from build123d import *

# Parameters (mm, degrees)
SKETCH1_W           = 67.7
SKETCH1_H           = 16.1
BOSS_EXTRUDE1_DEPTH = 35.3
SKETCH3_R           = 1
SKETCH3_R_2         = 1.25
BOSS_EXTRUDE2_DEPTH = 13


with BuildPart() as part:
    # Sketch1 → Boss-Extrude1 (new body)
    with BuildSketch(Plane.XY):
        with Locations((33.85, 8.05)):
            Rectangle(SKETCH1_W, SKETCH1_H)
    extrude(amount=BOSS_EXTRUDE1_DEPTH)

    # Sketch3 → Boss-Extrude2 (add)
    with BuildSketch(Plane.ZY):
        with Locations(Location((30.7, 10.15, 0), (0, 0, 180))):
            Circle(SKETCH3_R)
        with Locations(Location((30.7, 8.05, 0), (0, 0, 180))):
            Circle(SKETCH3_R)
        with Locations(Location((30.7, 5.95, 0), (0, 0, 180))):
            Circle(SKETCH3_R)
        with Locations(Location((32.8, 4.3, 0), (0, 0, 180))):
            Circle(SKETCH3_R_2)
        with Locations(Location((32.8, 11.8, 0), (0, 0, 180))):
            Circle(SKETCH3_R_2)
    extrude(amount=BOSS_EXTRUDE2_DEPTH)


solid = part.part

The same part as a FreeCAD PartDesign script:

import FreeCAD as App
import Part
import Sketcher
from FreeCAD import Vector

doc = App.newDocument("Part")
body = doc.addObject("PartDesign::Body", "Body")

sketch1 = body.newObject("Sketcher::SketchObject", "Sketch")
sketch1.AttachmentSupport = (doc.getObject("XY_Plane"), [""])
sketch1.MapMode = "FlatFace"
sketch1.addGeometry([
    Part.LineSegment(Vector(0, 16, 0), Vector(0, 0, 0)),
    Part.LineSegment(Vector(0, 0, 0), Vector(68, 0, 0)),
    Part.LineSegment(Vector(68, 0, 0), Vector(68, 16, 0)),
    Part.LineSegment(Vector(68, 16, 0), Vector(0, 16, 0)),
], False)
sketch1.addConstraint([
    Sketcher.Constraint("Coincident", 0, 2, 1, 1),
    Sketcher.Constraint("Coincident", 1, 2, 2, 1),
    Sketcher.Constraint("Coincident", 2, 2, 3, 1),
    Sketcher.Constraint("Coincident", 3, 2, 0, 1),
    Sketcher.Constraint("Vertical", 0),
    Sketcher.Constraint("Horizontal", 1),
    Sketcher.Constraint("Vertical", 2),
    Sketcher.Constraint("Horizontal", 3),
    Sketcher.Constraint("Coincident", 0, 2, -1, 1),
    Sketcher.Constraint("DistanceX", 1, 1, 1, 2, 67.7),
    Sketcher.Constraint("DistanceY", 0, 2, 0, 1, 16.1),
])
pad1 = body.newObject("PartDesign::Pad", "Pad")
pad1.Profile = sketch1
pad1.Length = 35.3

sketch2 = body.newObject("Sketcher::SketchObject", "Sketch001")
sketch2.AttachmentSupport = (doc.getObject("YZ_Plane"), [""])
sketch2.MapMode = "FlatFace"
sketch2.addGeometry([
    Part.Circle(Vector(10.2, 30.7, 0), Vector(0, 0, 1), 1),
    Part.Circle(Vector(8.1, 30.7, 0), Vector(0, 0, 1), 1),
    Part.Circle(Vector(6, 30.7, 0), Vector(0, 0, 1), 1),
    Part.Circle(Vector(4.3, 32.8, 0), Vector(0, 0, 1), 1.2),
    Part.Circle(Vector(11.8, 32.8, 0), Vector(0, 0, 1), 1.2),
], False)
sketch2.addConstraint([
    Sketcher.Constraint("Equal", 0, 1),
    Sketcher.Constraint("Equal", 1, 2),
    Sketcher.Constraint("Equal", 3, 4),
    Sketcher.Constraint("Horizontal", 0, 3, 1, 3),
    Sketcher.Constraint("Horizontal", 1, 3, 2, 3),
    Sketcher.Constraint("Horizontal", 3, 3, 4, 3),
    Sketcher.Constraint("Diameter", 0, 2.0),
    Sketcher.Constraint("Diameter", 3, 2.5),
    Sketcher.Constraint("DistanceY", -1, 1, 0, 3, 30.7),
    Sketcher.Constraint("DistanceX", -1, 1, 3, 3, 4.3),
    Sketcher.Constraint("DistanceY", -1, 1, 3, 3, 32.8),
    Sketcher.Constraint("DistanceX", -1, 1, 4, 3, 11.8),
    Sketcher.Constraint("DistanceX", 1, 3, 0, 3, 2.1),
    Sketcher.Constraint("DistanceX", 2, 3, 1, 3, 2.1),
    Sketcher.Constraint("DistanceX", -1, 1, 0, 3, 10.15),
])
pad2 = body.newObject("PartDesign::Pad", "Pad001")
pad2.Profile = sketch2
pad2.Length = 13
pad2.Reversed = True

doc.recompute()
